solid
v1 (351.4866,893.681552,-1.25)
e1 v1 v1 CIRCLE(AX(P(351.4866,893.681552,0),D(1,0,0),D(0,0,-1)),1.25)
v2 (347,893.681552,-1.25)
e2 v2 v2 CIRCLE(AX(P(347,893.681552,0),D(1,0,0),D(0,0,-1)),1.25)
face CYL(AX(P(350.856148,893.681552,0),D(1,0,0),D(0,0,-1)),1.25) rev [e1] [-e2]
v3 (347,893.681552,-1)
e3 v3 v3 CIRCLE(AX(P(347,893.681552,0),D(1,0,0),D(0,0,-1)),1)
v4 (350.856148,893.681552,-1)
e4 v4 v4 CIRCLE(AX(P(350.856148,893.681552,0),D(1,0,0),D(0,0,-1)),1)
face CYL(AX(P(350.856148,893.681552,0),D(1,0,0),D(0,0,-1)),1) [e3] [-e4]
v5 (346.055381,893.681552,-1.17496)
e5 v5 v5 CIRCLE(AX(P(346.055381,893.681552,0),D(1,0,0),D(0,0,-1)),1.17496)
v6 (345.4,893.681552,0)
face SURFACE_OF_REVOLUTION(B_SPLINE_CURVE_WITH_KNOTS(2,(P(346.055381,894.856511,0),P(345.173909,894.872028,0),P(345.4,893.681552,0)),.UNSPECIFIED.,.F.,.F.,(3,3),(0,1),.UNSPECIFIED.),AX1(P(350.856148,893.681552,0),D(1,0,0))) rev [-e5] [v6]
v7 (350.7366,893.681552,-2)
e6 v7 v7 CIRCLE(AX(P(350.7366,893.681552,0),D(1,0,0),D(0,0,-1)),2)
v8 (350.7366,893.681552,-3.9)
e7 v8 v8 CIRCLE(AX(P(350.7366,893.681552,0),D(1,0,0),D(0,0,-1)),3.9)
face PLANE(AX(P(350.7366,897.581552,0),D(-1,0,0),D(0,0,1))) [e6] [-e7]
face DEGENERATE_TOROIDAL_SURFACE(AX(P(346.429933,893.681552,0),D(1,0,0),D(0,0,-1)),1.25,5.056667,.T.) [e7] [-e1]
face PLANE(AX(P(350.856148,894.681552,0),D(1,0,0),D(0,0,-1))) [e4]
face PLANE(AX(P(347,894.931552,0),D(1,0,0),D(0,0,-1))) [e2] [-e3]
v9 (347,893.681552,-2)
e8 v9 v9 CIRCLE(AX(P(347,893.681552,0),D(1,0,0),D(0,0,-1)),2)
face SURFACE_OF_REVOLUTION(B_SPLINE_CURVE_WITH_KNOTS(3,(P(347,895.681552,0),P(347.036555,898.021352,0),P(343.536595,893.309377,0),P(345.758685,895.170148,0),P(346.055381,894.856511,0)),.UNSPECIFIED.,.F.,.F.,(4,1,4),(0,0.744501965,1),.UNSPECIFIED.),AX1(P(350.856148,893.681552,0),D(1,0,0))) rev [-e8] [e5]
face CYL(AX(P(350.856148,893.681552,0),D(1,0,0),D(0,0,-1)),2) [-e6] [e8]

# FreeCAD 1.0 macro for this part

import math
import FreeCAD as App
import Part
import Sketcher

V = App.Vector
Q = App.Units.Quantity

doc = App.newDocument("Part")
body = doc.addObject("PartDesign::Body", "Body")

# Sketch on XY plane
sketch1 = body.newObject("Sketcher::SketchObject", "Sketch")
sketch1.AttachmentSupport = (doc.getObject("XY_Plane"), [""])
sketch1.MapMode = "FlatFace"
sketch1.addGeometry(Part.LineSegment(V(345.4, 893.681552, 0), V(350.856148, 893.681552, 0)), False)
sketch1.addGeometry(Part.LineSegment(V(350.856148, 893.681552, 0), V(350.856148, 894.681552, 0)), False)
sketch1.addGeometry(Part.LineSegment(V(350.856148, 894.681552, 0), V(347, 894.681552, 0)), False)
sketch1.addGeometry(Part.LineSegment(V(347, 894.681552, 0), V(347, 894.931552, 0)), False)
sketch1.addGeometry(Part.LineSegment(V(347, 894.931552, 0), V(351.4866, 894.931552, 0)), False)
sketch1.addGeometry(Part.ArcOfCircle(Part.Circle(V(346.429933, 894.931552, 0), V(0, 0, 1), 5.056667), math.radians(0), math.radians(31.605028)), False)
sketch1.addGeometry(Part.LineSegment(V(350.7366, 897.581552, 0), V(350.7366, 895.681552, 0)), False)
sketch1.addGeometry(Part.LineSegment(V(350.7366, 895.681552, 0), V(347, 895.681552, 0)), False)
sketch1.addGeometry(Part.BSplineCurve([V(347, 895.681552, 0), V(347.036555, 898.021352, 0), V(343.536595, 893.309377, 0), V(345.758685, 895.170148, 0), V(346.055381, 894.856511, 0)], [4, 1, 4], [0, 0.744501965, 1], False, 3, [1, 1, 1, 1, 1], False), False)
sketch1.addGeometry(Part.BSplineCurve([V(346.055381, 894.856511, 0), V(345.173909, 894.872028, 0), V(345.4, 893.681552, 0)], [3, 3], [0, 1], False, 2, [1, 1, 1], False), False)
sketch1.addGeometry(Part.LineSegment(V(351.4866, 893.681552, 0), V(345.4, 893.681552, 0)), True)  # axis
sketch1.addConstraint(Sketcher.Constraint("Block", 8))
sketch1.addConstraint(Sketcher.Constraint("Block", 9))
sketch1.addConstraint(Sketcher.Constraint("Coincident", 0, 2, 1, 1))
sketch1.addConstraint(Sketcher.Constraint("Coincident", 1, 2, 2, 1))
sketch1.addConstraint(Sketcher.Constraint("Coincident", 2, 2, 3, 1))
sketch1.addConstraint(Sketcher.Constraint("Coincident", 3, 2, 4, 1))
sketch1.addConstraint(Sketcher.Constraint("Coincident", 4, 2, 5, 1))
sketch1.addConstraint(Sketcher.Constraint("Coincident", 5, 2, 6, 1))
sketch1.addConstraint(Sketcher.Constraint("Coincident", 6, 2, 7, 1))
sketch1.addConstraint(Sketcher.Constraint("Coincident", 7, 2, 8, 1))
sketch1.addConstraint(Sketcher.Constraint("Coincident", 9, 2, 0, 1))
sketch1.addConstraint(Sketcher.Constraint("Horizontal", 0))
sketch1.addConstraint(Sketcher.Constraint("Vertical", 1))
sketch1.addConstraint(Sketcher.Constraint("Horizontal", 2))
sketch1.addConstraint(Sketcher.Constraint("Vertical", 3))
sketch1.addConstraint(Sketcher.Constraint("Horizontal", 4))
sketch1.addConstraint(Sketcher.Constraint("Vertical", 6))
sketch1.addConstraint(Sketcher.Constraint("Horizontal", 7))
sketch1.addConstraint(Sketcher.Constraint("Horizontal", 10))
sketch1.addConstraint(Sketcher.Constraint("Horizontal", 5, 3, 3, 2))
sketch1.addConstraint(Sketcher.Constraint("Horizontal", 0, 2, 10, 1))
sketch1.addConstraint(Sketcher.Constraint("Vertical", 3, 2, 7, 2))
sketch1.addConstraint(Sketcher.Constraint("Vertical", 4, 2, 10, 1))
sketch1.addConstraint(Sketcher.Constraint("DistanceY", 1, 1, 1, 2, Q("1 mm")))
sketch1.addConstraint(Sketcher.Constraint("DistanceY", 6, 2, 6, 1, Q("1.9 mm")))
sketch1.addConstraint(Sketcher.Constraint("DistanceY", 3, 1, 3, 2, Q("0.25 mm")))
sketch1.addConstraint(Sketcher.Constraint("DistanceX", -1, 1, 10, 2, Q("345.4 mm")))
sketch1.addConstraint(Sketcher.Constraint("DistanceX", 5, 2, 4, 2, Q("0.75 mm")))
sketch1.addConstraint(Sketcher.Constraint("DistanceX", 4, 1, 4, 2, Q("4.4866 mm")))
sketch1.addConstraint(Sketcher.Constraint("DistanceX", 0, 1, 0, 2, Q("5.456148 mm")))
revolution = body.newObject("PartDesign::Revolution", "Revolution")
revolution.Profile = sketch1
revolution.ReferenceAxis = (sketch1, ["Axis0"])
revolution.Angle = 360

doc.recompute()
